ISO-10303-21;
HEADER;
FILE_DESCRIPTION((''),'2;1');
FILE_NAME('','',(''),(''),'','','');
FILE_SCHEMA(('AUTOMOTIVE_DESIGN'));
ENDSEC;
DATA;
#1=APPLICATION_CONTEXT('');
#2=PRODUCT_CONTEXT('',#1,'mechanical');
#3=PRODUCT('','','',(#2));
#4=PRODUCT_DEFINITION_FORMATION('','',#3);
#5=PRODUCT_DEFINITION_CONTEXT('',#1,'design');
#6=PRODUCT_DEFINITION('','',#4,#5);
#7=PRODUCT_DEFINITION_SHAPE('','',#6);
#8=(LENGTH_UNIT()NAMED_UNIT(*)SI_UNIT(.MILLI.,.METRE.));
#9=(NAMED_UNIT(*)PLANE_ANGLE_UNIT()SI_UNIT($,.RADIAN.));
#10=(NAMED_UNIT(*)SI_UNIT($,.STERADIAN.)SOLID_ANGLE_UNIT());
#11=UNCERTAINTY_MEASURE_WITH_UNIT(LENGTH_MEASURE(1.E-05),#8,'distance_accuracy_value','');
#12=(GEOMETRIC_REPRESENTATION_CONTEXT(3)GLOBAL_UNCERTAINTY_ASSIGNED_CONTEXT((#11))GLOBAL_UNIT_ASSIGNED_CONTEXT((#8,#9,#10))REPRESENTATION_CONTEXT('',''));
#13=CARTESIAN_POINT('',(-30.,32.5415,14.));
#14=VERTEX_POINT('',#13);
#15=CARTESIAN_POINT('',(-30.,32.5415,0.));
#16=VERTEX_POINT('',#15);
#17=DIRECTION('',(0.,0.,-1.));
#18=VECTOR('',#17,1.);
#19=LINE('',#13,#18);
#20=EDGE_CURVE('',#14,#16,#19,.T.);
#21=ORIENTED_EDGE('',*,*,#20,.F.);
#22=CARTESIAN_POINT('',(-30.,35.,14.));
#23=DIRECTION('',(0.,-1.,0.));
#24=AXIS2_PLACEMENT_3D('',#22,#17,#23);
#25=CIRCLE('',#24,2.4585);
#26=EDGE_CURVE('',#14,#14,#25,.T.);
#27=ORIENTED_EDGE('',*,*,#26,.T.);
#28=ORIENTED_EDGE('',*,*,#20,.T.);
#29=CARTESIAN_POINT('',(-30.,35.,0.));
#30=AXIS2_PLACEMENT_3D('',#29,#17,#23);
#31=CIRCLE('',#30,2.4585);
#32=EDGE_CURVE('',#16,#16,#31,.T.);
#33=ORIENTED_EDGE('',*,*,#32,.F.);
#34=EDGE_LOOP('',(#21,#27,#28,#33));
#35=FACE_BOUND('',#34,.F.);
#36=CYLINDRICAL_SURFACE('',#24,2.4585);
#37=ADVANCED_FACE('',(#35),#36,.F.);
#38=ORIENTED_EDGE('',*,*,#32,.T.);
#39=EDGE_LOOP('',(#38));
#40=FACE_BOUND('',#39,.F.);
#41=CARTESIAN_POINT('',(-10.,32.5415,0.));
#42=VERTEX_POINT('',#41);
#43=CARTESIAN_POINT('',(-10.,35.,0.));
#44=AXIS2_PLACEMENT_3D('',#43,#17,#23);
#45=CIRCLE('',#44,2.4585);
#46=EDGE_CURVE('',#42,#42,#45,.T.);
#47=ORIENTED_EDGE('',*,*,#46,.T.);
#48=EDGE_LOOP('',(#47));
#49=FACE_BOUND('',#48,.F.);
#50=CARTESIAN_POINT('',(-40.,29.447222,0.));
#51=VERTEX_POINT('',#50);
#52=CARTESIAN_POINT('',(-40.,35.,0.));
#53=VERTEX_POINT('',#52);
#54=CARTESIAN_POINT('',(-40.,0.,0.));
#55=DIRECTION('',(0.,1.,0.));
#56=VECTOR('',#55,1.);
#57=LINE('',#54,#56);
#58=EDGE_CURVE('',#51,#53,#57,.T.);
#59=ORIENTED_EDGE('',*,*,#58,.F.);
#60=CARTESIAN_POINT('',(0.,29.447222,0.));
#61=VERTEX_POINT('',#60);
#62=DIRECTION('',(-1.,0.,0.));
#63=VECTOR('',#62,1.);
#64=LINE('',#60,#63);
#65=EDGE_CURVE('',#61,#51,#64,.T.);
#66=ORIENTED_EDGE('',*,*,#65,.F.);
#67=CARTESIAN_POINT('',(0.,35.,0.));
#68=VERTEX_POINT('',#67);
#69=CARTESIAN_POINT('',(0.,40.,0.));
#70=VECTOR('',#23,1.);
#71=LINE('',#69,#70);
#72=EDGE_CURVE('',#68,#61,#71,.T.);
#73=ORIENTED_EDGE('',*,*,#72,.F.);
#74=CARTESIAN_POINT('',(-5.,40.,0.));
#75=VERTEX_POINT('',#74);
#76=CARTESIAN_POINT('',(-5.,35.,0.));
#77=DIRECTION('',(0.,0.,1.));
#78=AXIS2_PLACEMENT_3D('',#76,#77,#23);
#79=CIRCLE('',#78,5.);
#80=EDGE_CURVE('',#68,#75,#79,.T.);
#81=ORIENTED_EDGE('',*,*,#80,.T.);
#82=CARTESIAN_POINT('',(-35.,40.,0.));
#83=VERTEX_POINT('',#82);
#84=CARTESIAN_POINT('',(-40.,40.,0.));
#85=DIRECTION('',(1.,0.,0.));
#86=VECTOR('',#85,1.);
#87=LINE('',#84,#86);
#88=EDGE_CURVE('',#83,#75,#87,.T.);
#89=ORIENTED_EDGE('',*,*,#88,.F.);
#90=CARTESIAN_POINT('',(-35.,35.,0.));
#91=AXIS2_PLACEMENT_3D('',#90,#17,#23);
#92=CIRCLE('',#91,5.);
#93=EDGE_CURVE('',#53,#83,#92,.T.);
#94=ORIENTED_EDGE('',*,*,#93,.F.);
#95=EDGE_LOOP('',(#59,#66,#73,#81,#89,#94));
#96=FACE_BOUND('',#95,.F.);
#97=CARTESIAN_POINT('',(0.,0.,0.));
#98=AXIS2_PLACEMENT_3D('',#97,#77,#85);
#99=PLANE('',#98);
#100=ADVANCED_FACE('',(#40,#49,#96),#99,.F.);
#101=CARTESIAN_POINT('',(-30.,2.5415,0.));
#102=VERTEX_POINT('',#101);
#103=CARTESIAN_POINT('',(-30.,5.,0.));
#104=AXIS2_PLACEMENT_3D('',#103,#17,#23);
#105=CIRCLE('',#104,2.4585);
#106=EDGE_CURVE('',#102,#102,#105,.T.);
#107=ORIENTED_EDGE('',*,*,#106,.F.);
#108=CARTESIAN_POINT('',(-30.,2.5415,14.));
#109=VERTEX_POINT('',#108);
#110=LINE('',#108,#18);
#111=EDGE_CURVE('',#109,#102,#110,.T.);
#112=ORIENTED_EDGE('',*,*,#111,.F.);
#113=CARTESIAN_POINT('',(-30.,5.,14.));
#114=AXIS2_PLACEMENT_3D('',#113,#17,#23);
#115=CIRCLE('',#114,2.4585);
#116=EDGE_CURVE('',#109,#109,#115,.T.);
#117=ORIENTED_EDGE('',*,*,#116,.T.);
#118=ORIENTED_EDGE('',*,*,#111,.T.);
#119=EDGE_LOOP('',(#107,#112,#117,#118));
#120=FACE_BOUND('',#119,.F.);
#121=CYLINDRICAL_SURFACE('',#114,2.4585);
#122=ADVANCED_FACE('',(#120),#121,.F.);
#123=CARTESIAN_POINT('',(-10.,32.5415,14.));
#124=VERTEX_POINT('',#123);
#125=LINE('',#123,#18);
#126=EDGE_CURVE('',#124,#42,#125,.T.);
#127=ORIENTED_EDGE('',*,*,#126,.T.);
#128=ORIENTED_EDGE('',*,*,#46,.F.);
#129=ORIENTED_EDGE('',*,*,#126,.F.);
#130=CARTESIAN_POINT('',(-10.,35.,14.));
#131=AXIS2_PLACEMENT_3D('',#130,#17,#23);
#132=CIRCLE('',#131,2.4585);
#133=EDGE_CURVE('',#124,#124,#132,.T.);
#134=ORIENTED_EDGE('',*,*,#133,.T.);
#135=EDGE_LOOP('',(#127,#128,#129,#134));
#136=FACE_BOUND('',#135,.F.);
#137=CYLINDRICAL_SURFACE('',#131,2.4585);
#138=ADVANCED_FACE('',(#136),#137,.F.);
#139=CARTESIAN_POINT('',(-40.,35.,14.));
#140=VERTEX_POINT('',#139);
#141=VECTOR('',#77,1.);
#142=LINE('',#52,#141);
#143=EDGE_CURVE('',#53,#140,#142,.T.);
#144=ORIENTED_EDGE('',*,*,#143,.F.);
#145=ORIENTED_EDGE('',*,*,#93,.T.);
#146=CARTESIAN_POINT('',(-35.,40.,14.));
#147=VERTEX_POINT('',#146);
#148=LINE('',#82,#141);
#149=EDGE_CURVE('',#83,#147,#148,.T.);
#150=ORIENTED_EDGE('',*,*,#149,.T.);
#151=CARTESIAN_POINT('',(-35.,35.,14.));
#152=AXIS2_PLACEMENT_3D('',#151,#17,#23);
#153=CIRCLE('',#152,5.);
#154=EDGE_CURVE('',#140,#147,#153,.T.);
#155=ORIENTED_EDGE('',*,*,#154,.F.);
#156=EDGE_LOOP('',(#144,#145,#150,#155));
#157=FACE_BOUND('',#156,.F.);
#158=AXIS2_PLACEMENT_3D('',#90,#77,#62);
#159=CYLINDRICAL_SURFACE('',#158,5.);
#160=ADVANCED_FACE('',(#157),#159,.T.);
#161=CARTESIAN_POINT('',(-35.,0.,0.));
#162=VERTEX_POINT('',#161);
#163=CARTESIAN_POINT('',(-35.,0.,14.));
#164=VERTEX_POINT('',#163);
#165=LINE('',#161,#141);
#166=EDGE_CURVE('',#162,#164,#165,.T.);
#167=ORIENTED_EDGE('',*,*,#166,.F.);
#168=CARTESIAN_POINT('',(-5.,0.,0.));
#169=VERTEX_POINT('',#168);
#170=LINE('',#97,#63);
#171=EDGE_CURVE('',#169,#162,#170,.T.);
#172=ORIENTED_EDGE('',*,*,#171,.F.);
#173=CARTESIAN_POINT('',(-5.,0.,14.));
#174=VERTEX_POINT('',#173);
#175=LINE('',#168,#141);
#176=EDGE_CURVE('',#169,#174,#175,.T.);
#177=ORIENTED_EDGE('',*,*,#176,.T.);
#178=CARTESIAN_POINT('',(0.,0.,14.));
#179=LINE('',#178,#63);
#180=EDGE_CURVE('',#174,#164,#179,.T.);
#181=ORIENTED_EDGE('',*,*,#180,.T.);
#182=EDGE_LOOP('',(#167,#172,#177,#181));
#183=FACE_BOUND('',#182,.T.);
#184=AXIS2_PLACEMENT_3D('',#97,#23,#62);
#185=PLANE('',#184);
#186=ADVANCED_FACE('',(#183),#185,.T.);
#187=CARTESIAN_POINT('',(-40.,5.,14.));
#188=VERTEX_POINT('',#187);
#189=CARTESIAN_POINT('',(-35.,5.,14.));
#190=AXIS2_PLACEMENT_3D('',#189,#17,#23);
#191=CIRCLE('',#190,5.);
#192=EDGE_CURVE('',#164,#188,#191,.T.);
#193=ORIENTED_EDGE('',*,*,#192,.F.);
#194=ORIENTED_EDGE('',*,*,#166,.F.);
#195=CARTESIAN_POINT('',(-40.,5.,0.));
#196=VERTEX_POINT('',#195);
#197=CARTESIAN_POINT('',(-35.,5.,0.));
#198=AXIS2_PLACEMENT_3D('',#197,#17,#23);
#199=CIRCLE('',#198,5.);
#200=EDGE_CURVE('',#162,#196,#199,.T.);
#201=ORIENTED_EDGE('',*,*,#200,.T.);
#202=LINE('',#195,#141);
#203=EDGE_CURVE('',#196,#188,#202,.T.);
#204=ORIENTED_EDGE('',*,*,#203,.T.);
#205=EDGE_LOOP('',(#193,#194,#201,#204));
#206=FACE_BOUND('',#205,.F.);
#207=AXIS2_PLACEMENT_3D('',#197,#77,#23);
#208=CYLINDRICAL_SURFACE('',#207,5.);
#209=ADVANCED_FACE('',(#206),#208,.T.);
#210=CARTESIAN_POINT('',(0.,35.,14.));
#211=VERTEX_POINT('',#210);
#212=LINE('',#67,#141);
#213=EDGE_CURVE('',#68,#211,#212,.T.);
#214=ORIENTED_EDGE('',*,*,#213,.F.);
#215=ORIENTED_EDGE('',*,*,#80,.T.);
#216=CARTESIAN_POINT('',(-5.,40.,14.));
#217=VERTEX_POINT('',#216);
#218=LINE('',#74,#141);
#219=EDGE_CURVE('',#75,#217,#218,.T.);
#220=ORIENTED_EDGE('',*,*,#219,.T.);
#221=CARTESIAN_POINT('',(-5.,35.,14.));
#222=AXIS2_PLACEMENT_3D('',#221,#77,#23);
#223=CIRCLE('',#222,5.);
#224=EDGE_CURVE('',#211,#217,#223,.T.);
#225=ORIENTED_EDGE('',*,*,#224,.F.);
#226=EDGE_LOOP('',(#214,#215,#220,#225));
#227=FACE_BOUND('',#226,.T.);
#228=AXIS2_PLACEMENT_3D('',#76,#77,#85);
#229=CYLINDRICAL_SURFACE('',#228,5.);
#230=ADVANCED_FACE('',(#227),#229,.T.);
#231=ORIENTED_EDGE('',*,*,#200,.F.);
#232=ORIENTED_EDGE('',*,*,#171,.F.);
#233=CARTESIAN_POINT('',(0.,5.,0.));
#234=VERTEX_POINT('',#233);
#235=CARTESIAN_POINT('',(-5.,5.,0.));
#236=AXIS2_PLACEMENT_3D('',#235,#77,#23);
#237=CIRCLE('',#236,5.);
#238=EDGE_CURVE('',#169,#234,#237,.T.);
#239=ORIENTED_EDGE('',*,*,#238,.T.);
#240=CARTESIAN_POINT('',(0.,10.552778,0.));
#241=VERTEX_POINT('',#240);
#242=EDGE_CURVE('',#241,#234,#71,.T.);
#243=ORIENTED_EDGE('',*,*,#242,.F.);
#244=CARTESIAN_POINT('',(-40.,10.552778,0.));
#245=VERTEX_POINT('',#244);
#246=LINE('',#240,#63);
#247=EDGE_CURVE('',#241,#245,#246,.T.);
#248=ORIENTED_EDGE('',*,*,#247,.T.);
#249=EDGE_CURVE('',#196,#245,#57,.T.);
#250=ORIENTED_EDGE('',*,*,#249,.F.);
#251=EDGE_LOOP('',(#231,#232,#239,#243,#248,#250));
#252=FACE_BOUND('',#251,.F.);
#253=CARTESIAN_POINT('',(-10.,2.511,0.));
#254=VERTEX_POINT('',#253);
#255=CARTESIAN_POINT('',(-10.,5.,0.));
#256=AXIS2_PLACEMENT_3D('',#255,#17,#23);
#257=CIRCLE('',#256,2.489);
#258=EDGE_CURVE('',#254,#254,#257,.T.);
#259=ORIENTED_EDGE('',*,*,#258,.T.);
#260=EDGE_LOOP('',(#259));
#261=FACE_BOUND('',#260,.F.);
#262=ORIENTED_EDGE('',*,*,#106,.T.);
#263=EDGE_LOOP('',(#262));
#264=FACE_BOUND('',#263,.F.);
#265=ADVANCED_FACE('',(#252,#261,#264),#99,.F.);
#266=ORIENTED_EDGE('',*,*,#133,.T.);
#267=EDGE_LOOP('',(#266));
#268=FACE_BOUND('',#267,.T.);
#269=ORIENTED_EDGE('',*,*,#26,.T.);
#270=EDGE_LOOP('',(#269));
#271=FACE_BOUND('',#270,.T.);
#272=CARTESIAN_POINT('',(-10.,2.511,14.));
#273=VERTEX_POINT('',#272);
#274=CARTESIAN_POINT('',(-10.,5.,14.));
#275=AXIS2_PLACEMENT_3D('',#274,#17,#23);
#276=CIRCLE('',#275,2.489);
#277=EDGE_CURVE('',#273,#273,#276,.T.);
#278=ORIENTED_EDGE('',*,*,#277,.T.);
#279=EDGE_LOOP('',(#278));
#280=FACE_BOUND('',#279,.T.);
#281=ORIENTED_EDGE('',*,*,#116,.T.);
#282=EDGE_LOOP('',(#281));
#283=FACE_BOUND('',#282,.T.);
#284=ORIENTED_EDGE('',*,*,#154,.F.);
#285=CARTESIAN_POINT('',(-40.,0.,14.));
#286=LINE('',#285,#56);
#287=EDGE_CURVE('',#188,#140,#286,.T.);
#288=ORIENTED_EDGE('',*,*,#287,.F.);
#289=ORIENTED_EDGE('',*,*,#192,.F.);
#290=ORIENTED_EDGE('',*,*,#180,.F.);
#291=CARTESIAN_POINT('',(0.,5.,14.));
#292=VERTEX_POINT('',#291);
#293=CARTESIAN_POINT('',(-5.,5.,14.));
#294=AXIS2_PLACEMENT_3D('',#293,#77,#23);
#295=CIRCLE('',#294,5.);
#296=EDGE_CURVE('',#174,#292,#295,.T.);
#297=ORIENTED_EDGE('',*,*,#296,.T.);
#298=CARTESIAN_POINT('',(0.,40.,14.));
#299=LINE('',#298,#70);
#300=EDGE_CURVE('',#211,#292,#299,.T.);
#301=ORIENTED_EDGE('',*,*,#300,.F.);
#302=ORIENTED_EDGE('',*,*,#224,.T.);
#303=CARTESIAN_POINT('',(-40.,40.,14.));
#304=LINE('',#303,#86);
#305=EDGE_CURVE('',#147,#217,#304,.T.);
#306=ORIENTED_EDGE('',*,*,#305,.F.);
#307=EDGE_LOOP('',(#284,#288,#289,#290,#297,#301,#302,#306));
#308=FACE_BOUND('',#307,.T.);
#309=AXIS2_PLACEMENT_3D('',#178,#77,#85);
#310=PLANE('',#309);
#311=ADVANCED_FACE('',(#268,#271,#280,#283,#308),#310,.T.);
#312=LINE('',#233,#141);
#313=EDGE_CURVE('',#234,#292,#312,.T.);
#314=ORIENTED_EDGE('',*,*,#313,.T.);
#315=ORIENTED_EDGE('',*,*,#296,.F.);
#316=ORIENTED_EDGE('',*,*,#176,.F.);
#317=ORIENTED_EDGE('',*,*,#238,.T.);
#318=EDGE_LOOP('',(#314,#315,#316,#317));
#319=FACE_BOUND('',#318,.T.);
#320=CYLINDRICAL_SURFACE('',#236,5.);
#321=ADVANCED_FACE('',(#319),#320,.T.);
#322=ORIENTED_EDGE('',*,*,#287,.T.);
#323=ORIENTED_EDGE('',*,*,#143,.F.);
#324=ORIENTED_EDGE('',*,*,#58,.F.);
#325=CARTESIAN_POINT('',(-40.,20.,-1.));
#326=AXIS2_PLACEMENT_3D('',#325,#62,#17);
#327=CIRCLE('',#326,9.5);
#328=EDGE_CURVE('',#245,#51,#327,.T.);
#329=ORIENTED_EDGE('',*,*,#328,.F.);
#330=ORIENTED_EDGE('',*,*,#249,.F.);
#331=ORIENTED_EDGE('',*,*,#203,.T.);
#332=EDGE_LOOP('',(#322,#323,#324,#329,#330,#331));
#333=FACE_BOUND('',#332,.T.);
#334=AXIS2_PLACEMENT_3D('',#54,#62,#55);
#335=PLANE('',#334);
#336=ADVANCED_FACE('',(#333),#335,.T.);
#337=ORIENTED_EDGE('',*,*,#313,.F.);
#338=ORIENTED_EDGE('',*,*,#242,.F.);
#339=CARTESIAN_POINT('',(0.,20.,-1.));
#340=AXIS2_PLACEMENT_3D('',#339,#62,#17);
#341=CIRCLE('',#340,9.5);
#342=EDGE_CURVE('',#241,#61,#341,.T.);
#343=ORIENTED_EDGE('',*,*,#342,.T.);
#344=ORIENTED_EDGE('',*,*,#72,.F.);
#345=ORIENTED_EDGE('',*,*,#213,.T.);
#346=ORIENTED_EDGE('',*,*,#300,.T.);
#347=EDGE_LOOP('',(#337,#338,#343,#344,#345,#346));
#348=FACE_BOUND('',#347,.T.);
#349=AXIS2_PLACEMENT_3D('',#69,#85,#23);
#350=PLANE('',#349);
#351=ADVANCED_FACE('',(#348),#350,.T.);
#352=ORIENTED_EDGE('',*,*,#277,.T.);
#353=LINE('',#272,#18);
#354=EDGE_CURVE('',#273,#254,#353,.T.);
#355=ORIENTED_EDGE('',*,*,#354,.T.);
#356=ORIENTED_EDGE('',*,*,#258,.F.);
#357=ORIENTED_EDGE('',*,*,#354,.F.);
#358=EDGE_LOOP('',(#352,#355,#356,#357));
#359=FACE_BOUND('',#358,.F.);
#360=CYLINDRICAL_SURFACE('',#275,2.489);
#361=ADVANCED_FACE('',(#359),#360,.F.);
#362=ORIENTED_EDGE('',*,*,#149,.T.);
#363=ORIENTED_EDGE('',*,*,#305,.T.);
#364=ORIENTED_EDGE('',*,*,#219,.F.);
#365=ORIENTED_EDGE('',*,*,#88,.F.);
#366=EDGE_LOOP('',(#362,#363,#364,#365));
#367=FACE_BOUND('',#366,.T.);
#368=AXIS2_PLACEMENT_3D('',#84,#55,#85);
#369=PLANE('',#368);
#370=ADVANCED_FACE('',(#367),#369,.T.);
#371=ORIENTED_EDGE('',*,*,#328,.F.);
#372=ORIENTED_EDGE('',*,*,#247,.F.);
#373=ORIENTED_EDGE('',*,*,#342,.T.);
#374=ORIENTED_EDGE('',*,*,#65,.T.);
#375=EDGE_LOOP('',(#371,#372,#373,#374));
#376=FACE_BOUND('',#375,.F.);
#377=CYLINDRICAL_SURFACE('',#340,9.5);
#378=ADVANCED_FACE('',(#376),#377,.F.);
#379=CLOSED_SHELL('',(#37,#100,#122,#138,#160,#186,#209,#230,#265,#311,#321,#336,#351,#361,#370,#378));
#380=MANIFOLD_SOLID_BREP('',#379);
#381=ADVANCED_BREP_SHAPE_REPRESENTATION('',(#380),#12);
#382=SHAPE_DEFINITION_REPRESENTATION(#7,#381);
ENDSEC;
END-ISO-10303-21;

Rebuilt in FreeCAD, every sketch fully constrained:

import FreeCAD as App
import Part
import Sketcher


def edges_at(feature, points):
    """Names of the edges that pass closest to the given points."""
    edges = feature.Shape.Edges
    near = lambda p: min(range(len(edges)), key=lambda i: edges[i].distToShape(Part.Vertex(*p))[0])
    return sorted({f"Edge{near(p) + 1}" for p in points})

doc = App.newDocument("Part")
body = doc.addObject("PartDesign::Body", "Body")

sketch1 = body.newObject("Sketcher::SketchObject", "Sketch")
sketch1.AttachmentSupport = (doc.getObject("XY_Plane"), [""])
sketch1.MapMode = "FlatFace"
sketch1.addGeometry(Part.LineSegment(App.Vector(-40, 0, 0), App.Vector(0, 0, 0)), False)
sketch1.addGeometry(Part.LineSegment(App.Vector(0, 0, 0), App.Vector(0, 40, 0)), False)
sketch1.addGeometry(Part.LineSegment(App.Vector(0, 40, 0), App.Vector(-40, 40, 0)), False)
sketch1.addGeometry(Part.LineSegment(App.Vector(-40, 40, 0), App.Vector(-40, 0, 0)), False)
sketch1.addConstraint(Sketcher.Constraint("Coincident", 0, 2, 1, 1))
sketch1.addConstraint(Sketcher.Constraint("Coincident", 1, 2, 2, 1))
sketch1.addConstraint(Sketcher.Constraint("Coincident", 2, 2, 3, 1))
sketch1.addConstraint(Sketcher.Constraint("Coincident", 3, 2, 0, 1))
sketch1.addConstraint(Sketcher.Constraint("Horizontal", 0))
sketch1.addConstraint(Sketcher.Constraint("Vertical", 1))
sketch1.addConstraint(Sketcher.Constraint("Horizontal", 2))
sketch1.addConstraint(Sketcher.Constraint("Vertical", 3))
sketch1.addConstraint(Sketcher.Constraint("Coincident", 0, 2, -1, 1))
sketch1.addConstraint(Sketcher.Constraint("Equal", 2, 1))
sketch1.addConstraint(Sketcher.Constraint("DistanceX", 0, 1, 0, 2, 40.0))
pad1 = body.newObject("PartDesign::Pad", "Pad")
pad1.Profile = sketch1
pad1.Length = 14

sketch2 = body.newObject("Sketcher::SketchObject", "Sketch001")
sketch2.AttachmentSupport = (doc.getObject("XY_Plane"), [""])
sketch2.MapMode = "FlatFace"
sketch2.AttachmentOffset = App.Placement(App.Vector(0, 0, 14), App.Rotation())
sketch2.addGeometry(Part.Circle(App.Vector(-30, 35, 0), App.Vector(0, 0, 1), 2.5), False)
sketch2.addConstraint(Sketcher.Constraint("Diameter", 0, 4.917))
sketch2.addConstraint(Sketcher.Constraint("DistanceX", 0, 3, -1, 1, 30.0))
sketch2.addConstraint(Sketcher.Constraint("DistanceY", -1, 1, 0, 3, 35.0))
doc.recompute()
hole = body.newObject("PartDesign::Hole", "Hole")
hole.Profile = sketch2
hole.ThreadType = "None"
hole.Diameter = 4.917
hole.DepthType = "Dimension"
hole.Depth = 17.1
hole.DrillPoint = "Angled"
hole.DrillPointAngle = 118

sketch3 = body.newObject("Sketcher::SketchObject", "Sketch002")
sketch3.AttachmentSupport = (doc.getObject("XY_Plane"), [""])
sketch3.MapMode = "FlatFace"
sketch3.AttachmentOffset = App.Placement(App.Vector(0, 0, 14), App.Rotation())
sketch3.addGeometry(Part.Circle(App.Vector(-10, 35, 0), App.Vector(0, 0, 1), 2.5), False)
sketch3.addConstraint(Sketcher.Constraint("Diameter", 0, 4.917))
sketch3.addConstraint(Sketcher.Constraint("DistanceX", 0, 3, -1, 1, 10.0))
sketch3.addConstraint(Sketcher.Constraint("DistanceY", -1, 1, 0, 3, 35.0))
doc.recompute()
hole2 = body.newObject("PartDesign::Hole", "Hole001")
hole2.Profile = sketch3
hole2.ThreadType = "None"
hole2.Diameter = 4.917
hole2.DepthType = "Dimension"
hole2.Depth = 17.1
hole2.DrillPoint = "Angled"
hole2.DrillPointAngle = 118

sketch4 = body.newObject("Sketcher::SketchObject", "Sketch003")
sketch4.AttachmentSupport = (doc.getObject("XY_Plane"), [""])
sketch4.MapMode = "FlatFace"
sketch4.AttachmentOffset = App.Placement(App.Vector(0, 0, 14), App.Rotation())
sketch4.addGeometry(Part.Circle(App.Vector(-10, 5, 0), App.Vector(0, 0, 1), 2.5), False)
sketch4.addConstraint(Sketcher.Constraint("Diameter", 0, 4.978))
sketch4.addConstraint(Sketcher.Constraint("DistanceX", 0, 3, -1, 1, 10.0))
sketch4.addConstraint(Sketcher.Constraint("DistanceY", -1, 1, 0, 3, 5.0))
doc.recompute()
hole3 = body.newObject("PartDesign::Hole", "Hole002")
hole3.Profile = sketch4
hole3.ThreadType = "None"
hole3.Diameter = 4.978
hole3.DepthType = "Dimension"
hole3.Depth = 19.05
hole3.DrillPoint = "Angled"
hole3.DrillPointAngle = 118

sketch5 = body.newObject("Sketcher::SketchObject", "Sketch004")
sketch5.AttachmentSupport = (doc.getObject("XY_Plane"), [""])
sketch5.MapMode = "FlatFace"
sketch5.AttachmentOffset = App.Placement(App.Vector(0, 0, 14), App.Rotation())
sketch5.addGeometry(Part.Circle(App.Vector(-30, 5, 0), App.Vector(0, 0, 1), 2.5), False)
sketch5.addConstraint(Sketcher.Constraint("Diameter", 0, 4.917))
sketch5.addConstraint(Sketcher.Constraint("DistanceX", 0, 3, -1, 1, 30.0))
sketch5.addConstraint(Sketcher.Constraint("DistanceY", -1, 1, 0, 3, 5.0))
doc.recompute()
hole4 = body.newObject("PartDesign::Hole", "Hole003")
hole4.Profile = sketch5
hole4.ThreadType = "None"
hole4.Diameter = 4.917
hole4.DepthType = "Dimension"
hole4.Depth = 17.1
hole4.DrillPoint = "Angled"
hole4.DrillPointAngle = 118

sketch6 = body.newObject("Sketcher::SketchObject", "Sketch005")
sketch6.AttachmentSupport = (doc.getObject("YZ_Plane"), [""])
sketch6.MapMode = "FlatFace"
sketch6.addGeometry(Part.Circle(App.Vector(20, -1, 0), App.Vector(0, 0, 1), 10), False)
sketch6.addConstraint(Sketcher.Constraint("Diameter", 0, 19.0))
sketch6.addConstraint(Sketcher.Constraint("DistanceX", -1, 1, 0, 3, 20.0))
sketch6.addConstraint(Sketcher.Constraint("DistanceY", 0, 3, -1, 1, 1.0))
doc.recompute()
hole5 = body.newObject("PartDesign::Hole", "Hole004")
hole5.Profile = sketch6
hole5.ThreadType = "None"
hole5.Diameter = 19
hole5.DepthType = "ThroughAll"
doc.recompute()

fillet = body.newObject("PartDesign::Fillet", "Fillet")
fillet.Base = (hole5, edges_at(hole5, [
    (-40, 40, 7),
    (0, 40, 7),
    (0, 0, 7),
    (-40, 0, 7),
]))
fillet.Radius = 5

doc.recompute()
